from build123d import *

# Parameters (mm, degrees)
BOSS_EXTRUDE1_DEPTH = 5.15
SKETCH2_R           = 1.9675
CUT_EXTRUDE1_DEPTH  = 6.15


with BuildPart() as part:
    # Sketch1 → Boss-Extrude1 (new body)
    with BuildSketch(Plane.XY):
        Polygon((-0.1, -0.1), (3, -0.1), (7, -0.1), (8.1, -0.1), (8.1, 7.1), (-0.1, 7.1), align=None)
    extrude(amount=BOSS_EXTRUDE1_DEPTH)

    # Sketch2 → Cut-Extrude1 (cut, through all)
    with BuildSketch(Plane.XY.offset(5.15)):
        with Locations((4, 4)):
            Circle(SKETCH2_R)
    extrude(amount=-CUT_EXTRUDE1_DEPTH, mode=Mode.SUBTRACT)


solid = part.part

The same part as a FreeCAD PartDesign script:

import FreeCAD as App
import Part
import Sketcher

V = App.Vector
Q = App.Units.Quantity

doc = App.newDocument("Part")
body = doc.addObject("PartDesign::Body", "Body")

# Sketch on XY plane
sketch1 = doc.addObject("Sketcher::SketchObject", "Sketch")
body.addObject(sketch1)
sketch1.AttachmentSupport = (doc.XY_Plane, [""])
sketch1.MapMode = "FlatFace"
sketch1.addGeometry([
    Part.LineSegment(V(0, 0, 0), V(8, 0, 0)),
    Part.LineSegment(V(8, 0, 0), V(8, 7, 0)),
    Part.LineSegment(V(8, 7, 0), V(0, 7, 0)),
    Part.LineSegment(V(0, 7, 0), V(0, 0, 0)),
], False)
sketch1.addConstraint([
    Sketcher.Constraint("Coincident", 0, 2, 1, 1),
    Sketcher.Constraint("Coincident", 1, 2, 2, 1),
    Sketcher.Constraint("Coincident", 2, 2, 3, 1),
    Sketcher.Constraint("Coincident", 3, 2, 0, 1),
    Sketcher.Constraint("Horizontal", 0),
    Sketcher.Constraint("Vertical", 1),
    Sketcher.Constraint("Horizontal", 2),
    Sketcher.Constraint("Vertical", 3),
    Sketcher.Constraint("DistanceX", 0, 1, 0, 2, Q("8.2 mm")),
    Sketcher.Constraint("DistanceY", 1, 1, 1, 2, Q("7.2 mm")),
    Sketcher.Constraint("DistanceX", -1, 1, 0, 2, Q("8.1 mm")),
    Sketcher.Constraint("DistanceY", 0, 2, -1, 1, Q("0.1 mm")),
])
pad1 = doc.addObject("PartDesign::Pad", "Pad")
body.addObject(pad1)
pad1.Profile = sketch1
pad1.Length = 5.15

# Sketch on XY plane
sketch2 = doc.addObject("Sketcher::SketchObject", "Sketch001")
body.addObject(sketch2)
sketch2.AttachmentSupport = (doc.XY_Plane, [""])
sketch2.MapMode = "FlatFace"
sketch2.AttachmentOffset = App.Placement(V(0, 0, 5.15), App.Rotation())
sketch2.addGeometry(Part.Circle(V(4, 4, 0), V(0, 0, 1), 2), False)
sketch2.addConstraint([
    Sketcher.Constraint("Diameter", 0, Q("3.935 mm")),
    Sketcher.Constraint("DistanceX", -1, 1, 0, 3, Q("4 mm")),
    Sketcher.Constraint("DistanceY", -1, 1, 0, 3, Q("4 mm")),
])
pocket1 = doc.addObject("PartDesign::Pocket", "Pocket")
body.addObject(pocket1)
pocket1.Profile = sketch2
pocket1.Type = "ThroughAll"

doc.recompute()
